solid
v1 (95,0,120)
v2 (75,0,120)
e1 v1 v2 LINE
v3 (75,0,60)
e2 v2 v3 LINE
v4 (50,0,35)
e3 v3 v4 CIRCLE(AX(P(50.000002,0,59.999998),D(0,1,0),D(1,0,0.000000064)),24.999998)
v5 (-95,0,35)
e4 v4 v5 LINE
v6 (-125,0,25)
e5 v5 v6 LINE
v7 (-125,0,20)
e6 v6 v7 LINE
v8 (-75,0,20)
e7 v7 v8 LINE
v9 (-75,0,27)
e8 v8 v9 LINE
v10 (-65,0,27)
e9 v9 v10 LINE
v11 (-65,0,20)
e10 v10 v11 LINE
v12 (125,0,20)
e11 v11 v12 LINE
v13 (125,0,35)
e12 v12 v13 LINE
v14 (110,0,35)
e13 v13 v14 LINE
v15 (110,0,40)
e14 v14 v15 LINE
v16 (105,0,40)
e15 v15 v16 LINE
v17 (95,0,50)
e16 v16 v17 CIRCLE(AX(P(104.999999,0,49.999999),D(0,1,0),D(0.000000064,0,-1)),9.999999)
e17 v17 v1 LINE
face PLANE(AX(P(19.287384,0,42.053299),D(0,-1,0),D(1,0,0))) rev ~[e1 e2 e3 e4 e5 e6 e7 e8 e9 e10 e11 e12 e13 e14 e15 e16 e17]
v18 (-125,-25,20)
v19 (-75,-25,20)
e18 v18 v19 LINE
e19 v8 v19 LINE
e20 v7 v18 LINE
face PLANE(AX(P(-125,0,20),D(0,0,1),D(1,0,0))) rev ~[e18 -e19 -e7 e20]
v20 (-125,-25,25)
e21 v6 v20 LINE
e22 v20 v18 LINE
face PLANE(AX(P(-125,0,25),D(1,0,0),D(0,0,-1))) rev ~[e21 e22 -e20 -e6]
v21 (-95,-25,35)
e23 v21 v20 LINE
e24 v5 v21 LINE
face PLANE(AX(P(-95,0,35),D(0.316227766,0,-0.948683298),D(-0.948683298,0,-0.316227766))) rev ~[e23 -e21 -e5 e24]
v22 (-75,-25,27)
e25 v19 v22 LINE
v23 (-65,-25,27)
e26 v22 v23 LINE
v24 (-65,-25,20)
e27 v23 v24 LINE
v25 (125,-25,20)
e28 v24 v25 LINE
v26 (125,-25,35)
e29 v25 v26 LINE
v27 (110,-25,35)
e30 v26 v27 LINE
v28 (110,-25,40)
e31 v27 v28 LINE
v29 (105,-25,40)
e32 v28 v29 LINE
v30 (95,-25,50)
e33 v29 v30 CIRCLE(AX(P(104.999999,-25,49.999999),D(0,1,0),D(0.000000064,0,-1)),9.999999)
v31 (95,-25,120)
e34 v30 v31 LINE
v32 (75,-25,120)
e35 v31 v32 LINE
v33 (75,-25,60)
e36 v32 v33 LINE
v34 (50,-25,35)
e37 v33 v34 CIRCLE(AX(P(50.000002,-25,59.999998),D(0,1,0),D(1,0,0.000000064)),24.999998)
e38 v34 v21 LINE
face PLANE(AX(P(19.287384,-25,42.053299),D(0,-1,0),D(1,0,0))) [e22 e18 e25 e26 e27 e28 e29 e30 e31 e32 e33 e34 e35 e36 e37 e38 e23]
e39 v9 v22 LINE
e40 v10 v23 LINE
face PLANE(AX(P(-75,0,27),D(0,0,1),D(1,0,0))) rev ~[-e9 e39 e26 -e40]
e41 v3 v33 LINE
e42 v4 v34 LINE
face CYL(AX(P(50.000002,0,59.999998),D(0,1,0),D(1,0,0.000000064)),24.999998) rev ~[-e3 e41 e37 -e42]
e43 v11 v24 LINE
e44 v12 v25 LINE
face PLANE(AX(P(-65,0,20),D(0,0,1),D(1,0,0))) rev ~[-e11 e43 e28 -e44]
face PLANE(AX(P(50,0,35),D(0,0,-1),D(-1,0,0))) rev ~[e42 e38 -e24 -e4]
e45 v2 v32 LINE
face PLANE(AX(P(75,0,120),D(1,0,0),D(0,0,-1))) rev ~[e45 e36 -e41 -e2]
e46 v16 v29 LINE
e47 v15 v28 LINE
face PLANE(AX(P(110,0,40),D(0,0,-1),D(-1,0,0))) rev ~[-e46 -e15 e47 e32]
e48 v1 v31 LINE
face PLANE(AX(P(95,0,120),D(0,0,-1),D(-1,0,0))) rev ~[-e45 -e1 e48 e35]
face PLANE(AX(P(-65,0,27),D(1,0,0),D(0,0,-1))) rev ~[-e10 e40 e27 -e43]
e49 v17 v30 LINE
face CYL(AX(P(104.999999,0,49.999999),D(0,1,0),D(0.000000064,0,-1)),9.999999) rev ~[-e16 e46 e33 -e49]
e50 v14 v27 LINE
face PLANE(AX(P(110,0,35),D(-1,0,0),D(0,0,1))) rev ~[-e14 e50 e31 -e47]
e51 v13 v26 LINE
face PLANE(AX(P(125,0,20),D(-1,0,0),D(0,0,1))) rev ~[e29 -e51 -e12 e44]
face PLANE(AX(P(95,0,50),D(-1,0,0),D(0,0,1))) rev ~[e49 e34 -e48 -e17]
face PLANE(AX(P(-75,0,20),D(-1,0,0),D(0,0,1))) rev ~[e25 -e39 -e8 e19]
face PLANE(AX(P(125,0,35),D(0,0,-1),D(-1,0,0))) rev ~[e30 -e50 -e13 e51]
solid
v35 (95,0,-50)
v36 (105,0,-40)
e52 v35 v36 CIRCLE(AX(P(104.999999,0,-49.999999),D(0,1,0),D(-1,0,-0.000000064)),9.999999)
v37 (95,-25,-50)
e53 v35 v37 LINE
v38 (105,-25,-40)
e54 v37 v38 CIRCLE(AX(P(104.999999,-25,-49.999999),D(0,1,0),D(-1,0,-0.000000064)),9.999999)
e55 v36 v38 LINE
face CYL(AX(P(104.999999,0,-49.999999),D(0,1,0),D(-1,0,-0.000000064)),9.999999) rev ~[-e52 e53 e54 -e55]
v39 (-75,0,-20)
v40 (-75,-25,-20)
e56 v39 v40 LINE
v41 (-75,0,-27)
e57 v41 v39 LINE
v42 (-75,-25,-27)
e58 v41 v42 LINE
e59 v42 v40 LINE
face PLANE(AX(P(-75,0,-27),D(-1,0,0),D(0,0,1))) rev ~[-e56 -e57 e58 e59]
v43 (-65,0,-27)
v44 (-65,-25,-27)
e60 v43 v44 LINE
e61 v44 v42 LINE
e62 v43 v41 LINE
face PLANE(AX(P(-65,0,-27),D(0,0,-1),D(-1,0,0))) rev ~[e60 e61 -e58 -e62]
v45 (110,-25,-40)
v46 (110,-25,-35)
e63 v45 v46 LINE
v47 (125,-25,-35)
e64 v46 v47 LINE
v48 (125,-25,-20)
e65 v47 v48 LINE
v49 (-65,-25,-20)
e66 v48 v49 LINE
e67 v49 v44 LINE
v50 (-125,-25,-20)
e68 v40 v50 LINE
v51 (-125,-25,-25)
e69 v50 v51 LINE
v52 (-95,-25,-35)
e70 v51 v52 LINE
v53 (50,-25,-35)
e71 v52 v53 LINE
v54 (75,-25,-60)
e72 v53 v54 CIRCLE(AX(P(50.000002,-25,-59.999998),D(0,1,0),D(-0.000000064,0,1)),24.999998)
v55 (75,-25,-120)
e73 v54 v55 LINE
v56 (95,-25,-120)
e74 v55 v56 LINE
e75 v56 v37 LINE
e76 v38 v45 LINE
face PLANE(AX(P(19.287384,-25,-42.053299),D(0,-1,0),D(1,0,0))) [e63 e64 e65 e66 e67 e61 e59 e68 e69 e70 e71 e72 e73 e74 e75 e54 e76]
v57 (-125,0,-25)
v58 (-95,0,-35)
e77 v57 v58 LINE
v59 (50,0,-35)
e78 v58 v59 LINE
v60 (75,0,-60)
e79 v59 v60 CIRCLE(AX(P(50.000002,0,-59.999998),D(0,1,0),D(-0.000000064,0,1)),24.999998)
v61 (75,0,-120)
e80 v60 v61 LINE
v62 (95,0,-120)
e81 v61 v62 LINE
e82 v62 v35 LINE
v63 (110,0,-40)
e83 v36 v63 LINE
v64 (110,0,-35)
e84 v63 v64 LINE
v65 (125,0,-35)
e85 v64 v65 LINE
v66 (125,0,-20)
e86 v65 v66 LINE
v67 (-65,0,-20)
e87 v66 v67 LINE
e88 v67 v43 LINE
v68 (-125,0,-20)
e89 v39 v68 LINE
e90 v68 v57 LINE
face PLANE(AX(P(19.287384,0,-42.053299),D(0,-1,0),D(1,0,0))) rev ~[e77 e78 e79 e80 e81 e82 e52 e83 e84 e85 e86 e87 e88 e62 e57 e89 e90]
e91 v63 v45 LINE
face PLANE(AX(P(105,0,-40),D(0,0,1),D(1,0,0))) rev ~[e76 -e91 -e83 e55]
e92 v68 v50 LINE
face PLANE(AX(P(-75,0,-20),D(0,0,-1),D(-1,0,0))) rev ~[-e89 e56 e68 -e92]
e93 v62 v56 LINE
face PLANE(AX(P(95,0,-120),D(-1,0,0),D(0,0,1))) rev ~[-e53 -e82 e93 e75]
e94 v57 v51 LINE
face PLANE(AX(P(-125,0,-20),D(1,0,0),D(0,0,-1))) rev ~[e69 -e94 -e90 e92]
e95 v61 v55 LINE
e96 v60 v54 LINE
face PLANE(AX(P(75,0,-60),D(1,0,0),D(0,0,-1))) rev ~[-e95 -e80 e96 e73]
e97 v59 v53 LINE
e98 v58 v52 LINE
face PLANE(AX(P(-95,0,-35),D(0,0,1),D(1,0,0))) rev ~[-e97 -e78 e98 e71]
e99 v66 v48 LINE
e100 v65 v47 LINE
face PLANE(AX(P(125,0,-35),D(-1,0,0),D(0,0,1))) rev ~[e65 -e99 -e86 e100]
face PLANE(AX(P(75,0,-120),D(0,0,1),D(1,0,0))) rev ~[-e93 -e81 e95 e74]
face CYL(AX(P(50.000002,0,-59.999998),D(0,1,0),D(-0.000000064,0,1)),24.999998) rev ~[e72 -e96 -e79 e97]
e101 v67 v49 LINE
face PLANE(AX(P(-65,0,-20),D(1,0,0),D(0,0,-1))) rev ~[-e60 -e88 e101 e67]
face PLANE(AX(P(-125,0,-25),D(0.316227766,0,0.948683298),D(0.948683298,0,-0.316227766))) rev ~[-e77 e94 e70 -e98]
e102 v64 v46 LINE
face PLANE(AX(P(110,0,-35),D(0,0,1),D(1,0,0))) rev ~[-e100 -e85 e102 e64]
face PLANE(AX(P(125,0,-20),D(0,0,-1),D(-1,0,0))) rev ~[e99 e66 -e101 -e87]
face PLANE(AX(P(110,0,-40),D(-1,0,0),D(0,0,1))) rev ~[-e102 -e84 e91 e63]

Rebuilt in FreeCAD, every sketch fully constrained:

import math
import FreeCAD as App
import Part
import Sketcher
from FreeCAD import Vector

doc = App.newDocument("Part")
body = doc.addObject("PartDesign::Body", "Body")
body.AllowCompound = True

# Sketch on XZ plane
sketch1 = body.newObject("Sketcher::SketchObject", "Sketch")
sketch1.AttachmentSupport = (doc.getObject("XZ_Plane"), [""])
sketch1.MapMode = "FlatFace"
sketch1.addGeometry(Part.LineSegment(Vector(-65, 20, 0), Vector(125, 20, 0)), False)
sketch1.addGeometry(Part.LineSegment(Vector(125, 20, 0), Vector(125, 35, 0)), False)
sketch1.addGeometry(Part.LineSegment(Vector(125, 35, 0), Vector(110, 35, 0)), False)
sketch1.addGeometry(Part.LineSegment(Vector(110, 35, 0), Vector(110, 40, 0)), False)
sketch1.addGeometry(Part.LineSegment(Vector(110, 40, 0), Vector(105, 40, 0)), False)
sketch1.addGeometry(Part.ArcOfCircle(Part.Circle(Vector(105, 50, 0), Vector(0, 0, 1), 10), math.radians(180), math.radians(270)), False)
sketch1.addGeometry(Part.LineSegment(Vector(95, 50, 0), Vector(95, 120, 0)), False)
sketch1.addGeometry(Part.LineSegment(Vector(95, 120, 0), Vector(75, 120, 0)), False)
sketch1.addGeometry(Part.LineSegment(Vector(75, 120, 0), Vector(75, 60, 0)), False)
sketch1.addGeometry(Part.ArcOfCircle(Part.Circle(Vector(50, 60, 0), Vector(0, 0, 1), 25), math.radians(-90), math.radians(0)), False)
sketch1.addGeometry(Part.LineSegment(Vector(50, 35, 0), Vector(-95, 35, 0)), False)
sketch1.addGeometry(Part.LineSegment(Vector(-95, 35, 0), Vector(-125, 25, 0)), False)
sketch1.addGeometry(Part.LineSegment(Vector(-125, 25, 0), Vector(-125, 20, 0)), False)
sketch1.addGeometry(Part.LineSegment(Vector(-125, 20, 0), Vector(-75, 20, 0)), False)
sketch1.addGeometry(Part.LineSegment(Vector(-75, 20, 0), Vector(-75, 27, 0)), False)
sketch1.addGeometry(Part.LineSegment(Vector(-75, 27, 0), Vector(-65, 27, 0)), False)
sketch1.addGeometry(Part.LineSegment(Vector(-65, 27, 0), Vector(-65, 20, 0)), False)
sketch1.addGeometry(Part.ArcOfCircle(Part.Circle(Vector(105, -50, 0), Vector(0, 0, 1), 10), math.radians(90), math.radians(180)), False)
sketch1.addGeometry(Part.LineSegment(Vector(105, -40, 0), Vector(110, -40, 0)), False)
sketch1.addGeometry(Part.LineSegment(Vector(110, -40, 0), Vector(110, -35, 0)), False)
sketch1.addGeometry(Part.LineSegment(Vector(110, -35, 0), Vector(125, -35, 0)), False)
sketch1.addGeometry(Part.LineSegment(Vector(125, -35, 0), Vector(125, -20, 0)), False)
sketch1.addGeometry(Part.LineSegment(Vector(125, -20, 0), Vector(-65, -20, 0)), False)
sketch1.addGeometry(Part.LineSegment(Vector(-65, -20, 0), Vector(-65, -27, 0)), False)
sketch1.addGeometry(Part.LineSegment(Vector(-65, -27, 0), Vector(-75, -27, 0)), False)
sketch1.addGeometry(Part.LineSegment(Vector(-75, -27, 0), Vector(-75, -20, 0)), False)
sketch1.addGeometry(Part.LineSegment(Vector(-75, -20, 0), Vector(-125, -20, 0)), False)
sketch1.addGeometry(Part.LineSegment(Vector(-125, -20, 0), Vector(-125, -25, 0)), False)
sketch1.addGeometry(Part.LineSegment(Vector(-125, -25, 0), Vector(-95, -35, 0)), False)
sketch1.addGeometry(Part.LineSegment(Vector(-95, -35, 0), Vector(50, -35, 0)), False)
sketch1.addGeometry(Part.ArcOfCircle(Part.Circle(Vector(50, -60, 0), Vector(0, 0, 1), 25), math.radians(0), math.radians(90)), False)
sketch1.addGeometry(Part.LineSegment(Vector(75, -60, 0), Vector(75, -120, 0)), False)
sketch1.addGeometry(Part.LineSegment(Vector(75, -120, 0), Vector(95, -120, 0)), False)
sketch1.addGeometry(Part.LineSegment(Vector(95, -120, 0), Vector(95, -50, 0)), False)
sketch1.addConstraint(Sketcher.Constraint("Coincident", 0, 2, 1, 1))
sketch1.addConstraint(Sketcher.Constraint("Coincident", 1, 2, 2, 1))
sketch1.addConstraint(Sketcher.Constraint("Coincident", 2, 2, 3, 1))
sketch1.addConstraint(Sketcher.Constraint("Coincident", 3, 2, 4, 1))
sketch1.addConstraint(Sketcher.Constraint("Tangent", 4, 2, 5, 2))
sketch1.addConstraint(Sketcher.Constraint("Tangent", 5, 1, 6, 1))
sketch1.addConstraint(Sketcher.Constraint("Coincident", 6, 2, 7, 1))
sketch1.addConstraint(Sketcher.Constraint("Coincident", 7, 2, 8, 1))
sketch1.addConstraint(Sketcher.Constraint("Tangent", 8, 2, 9, 2))
sketch1.addConstraint(Sketcher.Constraint("Tangent", 9, 1, 10, 1))
sketch1.addConstraint(Sketcher.Constraint("Coincident", 10, 2, 11, 1))
sketch1.addConstraint(Sketcher.Constraint("Coincident", 11, 2, 12, 1))
sketch1.addConstraint(Sketcher.Constraint("Coincident", 12, 2, 13, 1))
sketch1.addConstraint(Sketcher.Constraint("Coincident", 13, 2, 14, 1))
sketch1.addConstraint(Sketcher.Constraint("Coincident", 14, 2, 15, 1))
sketch1.addConstraint(Sketcher.Constraint("Coincident", 15, 2, 16, 1))
sketch1.addConstraint(Sketcher.Constraint("Coincident", 16, 2, 0, 1))
sketch1.addConstraint(Sketcher.Constraint("Tangent", 17, 1, 18, 1))
sketch1.addConstraint(Sketcher.Constraint("Coincident", 18, 2, 19, 1))
sketch1.addConstraint(Sketcher.Constraint("Coincident", 19, 2, 20, 1))
sketch1.addConstraint(Sketcher.Constraint("Coincident", 20, 2, 21, 1))
sketch1.addConstraint(Sketcher.Constraint("Coincident", 21, 2, 22, 1))
sketch1.addConstraint(Sketcher.Constraint("Coincident", 22, 2, 23, 1))
sketch1.addConstraint(Sketcher.Constraint("Coincident", 23, 2, 24, 1))
sketch1.addConstraint(Sketcher.Constraint("Coincident", 24, 2, 25, 1))
sketch1.addConstraint(Sketcher.Constraint("Coincident", 25, 2, 26, 1))
sketch1.addConstraint(Sketcher.Constraint("Coincident", 26, 2, 27, 1))
sketch1.addConstraint(Sketcher.Constraint("Coincident", 27, 2, 28, 1))
sketch1.addConstraint(Sketcher.Constraint("Coincident", 28, 2, 29, 1))
sketch1.addConstraint(Sketcher.Constraint("Tangent", 29, 2, 30, 2))
sketch1.addConstraint(Sketcher.Constraint("Tangent", 30, 1, 31, 1))
sketch1.addConstraint(Sketcher.Constraint("Coincident", 31, 2, 32, 1))
sketch1.addConstraint(Sketcher.Constraint("Coincident", 32, 2, 33, 1))
sketch1.addConstraint(Sketcher.Constraint("Tangent", 33, 2, 17, 2))
sketch1.addConstraint(Sketcher.Constraint("Horizontal", 0))
sketch1.addConstraint(Sketcher.Constraint("Vertical", 1))
sketch1.addConstraint(Sketcher.Constraint("Horizontal", 2))
sketch1.addConstraint(Sketcher.Constraint("Vertical", 3))
sketch1.addConstraint(Sketcher.Constraint("Horizontal", 4))
sketch1.addConstraint(Sketcher.Constraint("Vertical", 6))
sketch1.addConstraint(Sketcher.Constraint("Horizontal", 7))
sketch1.addConstraint(Sketcher.Constraint("Vertical", 8))
sketch1.addConstraint(Sketcher.Constraint("Horizontal", 10))
sketch1.addConstraint(Sketcher.Constraint("Vertical", 12))
sketch1.addConstraint(Sketcher.Constraint("Horizontal", 13))
sketch1.addConstraint(Sketcher.Constraint("Vertical", 14))
sketch1.addConstraint(Sketcher.Constraint("Horizontal", 15))
sketch1.addConstraint(Sketcher.Constraint("Vertical", 16))
sketch1.addConstraint(Sketcher.Constraint("Horizontal", 18))
sketch1.addConstraint(Sketcher.Constraint("Vertical", 19))
sketch1.addConstraint(Sketcher.Constraint("Horizontal", 20))
sketch1.addConstraint(Sketcher.Constraint("Vertical", 21))
sketch1.addConstraint(Sketcher.Constraint("Horizontal", 22))
sketch1.addConstraint(Sketcher.Constraint("Vertical", 23))
sketch1.addConstraint(Sketcher.Constraint("Horizontal", 24))
sketch1.addConstraint(Sketcher.Constraint("Vertical", 25))
sketch1.addConstraint(Sketcher.Constraint("Horizontal", 26))
sketch1.addConstraint(Sketcher.Constraint("Vertical", 27))
sketch1.addConstraint(Sketcher.Constraint("Horizontal", 29))
sketch1.addConstraint(Sketcher.Constraint("Vertical", 31))
sketch1.addConstraint(Sketcher.Constraint("Horizontal", 32))
sketch1.addConstraint(Sketcher.Constraint("Vertical", 33))
sketch1.addConstraint(Sketcher.Constraint("Equal", 5, 17))
sketch1.addConstraint(Sketcher.Constraint("Equal", 9, 30))
sketch1.addConstraint(Sketcher.Constraint("Symmetric", 12, 2, 21, 2, -1, 1))
sketch1.addConstraint(Sketcher.Constraint("Symmetric", 0, 2, 26, 2, -1, 1))
sketch1.addConstraint(Sketcher.Constraint("Symmetric", 0, 2, 12, 2, -2))
sketch1.addConstraint(Sketcher.Constraint("Symmetric", 5, 3, 17, 3, -1))
sketch1.addConstraint(Sketcher.Constraint("Symmetric", 9, 3, 30, 3, -1))
sketch1.addConstraint(Sketcher.Constraint("Symmetric", 2, 2, 19, 2, -1))
sketch1.addConstraint(Sketcher.Constraint("Symmetric", 15, 2, 23, 2, -1))
sketch1.addConstraint(Sketcher.Constraint("Horizontal", 2, 2, 9, 1))
sketch1.addConstraint(Sketcher.Constraint("Vertical", 14, 2, 24, 2))
sketch1.addConstraint(Sketcher.Constraint("Vertical", 10, 2, 28, 2))
sketch1.addConstraint(Sketcher.Constraint("Equal", 20, 1))
sketch1.addConstraint(Sketcher.Constraint("Equal", 18, 3))
sketch1.addConstraint(Sketcher.Constraint("Equal", 3, 12))
sketch1.addConstraint(Sketcher.Constraint("Equal", 19, 27))
sketch1.addConstraint(Sketcher.Constraint("Equal", 8, 31))
sketch1.addConstraint(Sketcher.Constraint("Radius", 5, 9.999999))
sketch1.addConstraint(Sketcher.Constraint("Radius", 9, 24.999998))
sketch1.addConstraint(Sketcher.Constraint("DistanceX", 0, 1, 0, 2, 190.0))
sketch1.addConstraint(Sketcher.Constraint("DistanceX", 2, 2, 2, 1, 15.0))
sketch1.addConstraint(Sketcher.Constraint("DistanceX", 4, 2, 4, 1, 5.0))
sketch1.addConstraint(Sketcher.Constraint("DistanceX", 7, 2, 7, 1, 20.0))
sketch1.addConstraint(Sketcher.Constraint("DistanceX", 10, 2, 10, 1, 145.0))
sketch1.addConstraint(Sketcher.Constraint("DistanceX", 13, 1, 13, 2, 50.0))
sketch1.addConstraint(Sketcher.Constraint("DistanceX", 15, 1, 15, 2, 10.0))
sketch1.addConstraint(Sketcher.Constraint("DistanceY", 6, 1, 6, 2, 70.0))
sketch1.addConstraint(Sketcher.Constraint("DistanceY", 14, 1, 14, 2, 7.0))
sketch1.addConstraint(Sketcher.Constraint("DistanceY", -1, 1, 5, 3, 49.999999))
pad1 = body.newObject("PartDesign::Pad", "Pad")
pad1.Profile = sketch1
pad1.Length = 25

doc.recompute()
